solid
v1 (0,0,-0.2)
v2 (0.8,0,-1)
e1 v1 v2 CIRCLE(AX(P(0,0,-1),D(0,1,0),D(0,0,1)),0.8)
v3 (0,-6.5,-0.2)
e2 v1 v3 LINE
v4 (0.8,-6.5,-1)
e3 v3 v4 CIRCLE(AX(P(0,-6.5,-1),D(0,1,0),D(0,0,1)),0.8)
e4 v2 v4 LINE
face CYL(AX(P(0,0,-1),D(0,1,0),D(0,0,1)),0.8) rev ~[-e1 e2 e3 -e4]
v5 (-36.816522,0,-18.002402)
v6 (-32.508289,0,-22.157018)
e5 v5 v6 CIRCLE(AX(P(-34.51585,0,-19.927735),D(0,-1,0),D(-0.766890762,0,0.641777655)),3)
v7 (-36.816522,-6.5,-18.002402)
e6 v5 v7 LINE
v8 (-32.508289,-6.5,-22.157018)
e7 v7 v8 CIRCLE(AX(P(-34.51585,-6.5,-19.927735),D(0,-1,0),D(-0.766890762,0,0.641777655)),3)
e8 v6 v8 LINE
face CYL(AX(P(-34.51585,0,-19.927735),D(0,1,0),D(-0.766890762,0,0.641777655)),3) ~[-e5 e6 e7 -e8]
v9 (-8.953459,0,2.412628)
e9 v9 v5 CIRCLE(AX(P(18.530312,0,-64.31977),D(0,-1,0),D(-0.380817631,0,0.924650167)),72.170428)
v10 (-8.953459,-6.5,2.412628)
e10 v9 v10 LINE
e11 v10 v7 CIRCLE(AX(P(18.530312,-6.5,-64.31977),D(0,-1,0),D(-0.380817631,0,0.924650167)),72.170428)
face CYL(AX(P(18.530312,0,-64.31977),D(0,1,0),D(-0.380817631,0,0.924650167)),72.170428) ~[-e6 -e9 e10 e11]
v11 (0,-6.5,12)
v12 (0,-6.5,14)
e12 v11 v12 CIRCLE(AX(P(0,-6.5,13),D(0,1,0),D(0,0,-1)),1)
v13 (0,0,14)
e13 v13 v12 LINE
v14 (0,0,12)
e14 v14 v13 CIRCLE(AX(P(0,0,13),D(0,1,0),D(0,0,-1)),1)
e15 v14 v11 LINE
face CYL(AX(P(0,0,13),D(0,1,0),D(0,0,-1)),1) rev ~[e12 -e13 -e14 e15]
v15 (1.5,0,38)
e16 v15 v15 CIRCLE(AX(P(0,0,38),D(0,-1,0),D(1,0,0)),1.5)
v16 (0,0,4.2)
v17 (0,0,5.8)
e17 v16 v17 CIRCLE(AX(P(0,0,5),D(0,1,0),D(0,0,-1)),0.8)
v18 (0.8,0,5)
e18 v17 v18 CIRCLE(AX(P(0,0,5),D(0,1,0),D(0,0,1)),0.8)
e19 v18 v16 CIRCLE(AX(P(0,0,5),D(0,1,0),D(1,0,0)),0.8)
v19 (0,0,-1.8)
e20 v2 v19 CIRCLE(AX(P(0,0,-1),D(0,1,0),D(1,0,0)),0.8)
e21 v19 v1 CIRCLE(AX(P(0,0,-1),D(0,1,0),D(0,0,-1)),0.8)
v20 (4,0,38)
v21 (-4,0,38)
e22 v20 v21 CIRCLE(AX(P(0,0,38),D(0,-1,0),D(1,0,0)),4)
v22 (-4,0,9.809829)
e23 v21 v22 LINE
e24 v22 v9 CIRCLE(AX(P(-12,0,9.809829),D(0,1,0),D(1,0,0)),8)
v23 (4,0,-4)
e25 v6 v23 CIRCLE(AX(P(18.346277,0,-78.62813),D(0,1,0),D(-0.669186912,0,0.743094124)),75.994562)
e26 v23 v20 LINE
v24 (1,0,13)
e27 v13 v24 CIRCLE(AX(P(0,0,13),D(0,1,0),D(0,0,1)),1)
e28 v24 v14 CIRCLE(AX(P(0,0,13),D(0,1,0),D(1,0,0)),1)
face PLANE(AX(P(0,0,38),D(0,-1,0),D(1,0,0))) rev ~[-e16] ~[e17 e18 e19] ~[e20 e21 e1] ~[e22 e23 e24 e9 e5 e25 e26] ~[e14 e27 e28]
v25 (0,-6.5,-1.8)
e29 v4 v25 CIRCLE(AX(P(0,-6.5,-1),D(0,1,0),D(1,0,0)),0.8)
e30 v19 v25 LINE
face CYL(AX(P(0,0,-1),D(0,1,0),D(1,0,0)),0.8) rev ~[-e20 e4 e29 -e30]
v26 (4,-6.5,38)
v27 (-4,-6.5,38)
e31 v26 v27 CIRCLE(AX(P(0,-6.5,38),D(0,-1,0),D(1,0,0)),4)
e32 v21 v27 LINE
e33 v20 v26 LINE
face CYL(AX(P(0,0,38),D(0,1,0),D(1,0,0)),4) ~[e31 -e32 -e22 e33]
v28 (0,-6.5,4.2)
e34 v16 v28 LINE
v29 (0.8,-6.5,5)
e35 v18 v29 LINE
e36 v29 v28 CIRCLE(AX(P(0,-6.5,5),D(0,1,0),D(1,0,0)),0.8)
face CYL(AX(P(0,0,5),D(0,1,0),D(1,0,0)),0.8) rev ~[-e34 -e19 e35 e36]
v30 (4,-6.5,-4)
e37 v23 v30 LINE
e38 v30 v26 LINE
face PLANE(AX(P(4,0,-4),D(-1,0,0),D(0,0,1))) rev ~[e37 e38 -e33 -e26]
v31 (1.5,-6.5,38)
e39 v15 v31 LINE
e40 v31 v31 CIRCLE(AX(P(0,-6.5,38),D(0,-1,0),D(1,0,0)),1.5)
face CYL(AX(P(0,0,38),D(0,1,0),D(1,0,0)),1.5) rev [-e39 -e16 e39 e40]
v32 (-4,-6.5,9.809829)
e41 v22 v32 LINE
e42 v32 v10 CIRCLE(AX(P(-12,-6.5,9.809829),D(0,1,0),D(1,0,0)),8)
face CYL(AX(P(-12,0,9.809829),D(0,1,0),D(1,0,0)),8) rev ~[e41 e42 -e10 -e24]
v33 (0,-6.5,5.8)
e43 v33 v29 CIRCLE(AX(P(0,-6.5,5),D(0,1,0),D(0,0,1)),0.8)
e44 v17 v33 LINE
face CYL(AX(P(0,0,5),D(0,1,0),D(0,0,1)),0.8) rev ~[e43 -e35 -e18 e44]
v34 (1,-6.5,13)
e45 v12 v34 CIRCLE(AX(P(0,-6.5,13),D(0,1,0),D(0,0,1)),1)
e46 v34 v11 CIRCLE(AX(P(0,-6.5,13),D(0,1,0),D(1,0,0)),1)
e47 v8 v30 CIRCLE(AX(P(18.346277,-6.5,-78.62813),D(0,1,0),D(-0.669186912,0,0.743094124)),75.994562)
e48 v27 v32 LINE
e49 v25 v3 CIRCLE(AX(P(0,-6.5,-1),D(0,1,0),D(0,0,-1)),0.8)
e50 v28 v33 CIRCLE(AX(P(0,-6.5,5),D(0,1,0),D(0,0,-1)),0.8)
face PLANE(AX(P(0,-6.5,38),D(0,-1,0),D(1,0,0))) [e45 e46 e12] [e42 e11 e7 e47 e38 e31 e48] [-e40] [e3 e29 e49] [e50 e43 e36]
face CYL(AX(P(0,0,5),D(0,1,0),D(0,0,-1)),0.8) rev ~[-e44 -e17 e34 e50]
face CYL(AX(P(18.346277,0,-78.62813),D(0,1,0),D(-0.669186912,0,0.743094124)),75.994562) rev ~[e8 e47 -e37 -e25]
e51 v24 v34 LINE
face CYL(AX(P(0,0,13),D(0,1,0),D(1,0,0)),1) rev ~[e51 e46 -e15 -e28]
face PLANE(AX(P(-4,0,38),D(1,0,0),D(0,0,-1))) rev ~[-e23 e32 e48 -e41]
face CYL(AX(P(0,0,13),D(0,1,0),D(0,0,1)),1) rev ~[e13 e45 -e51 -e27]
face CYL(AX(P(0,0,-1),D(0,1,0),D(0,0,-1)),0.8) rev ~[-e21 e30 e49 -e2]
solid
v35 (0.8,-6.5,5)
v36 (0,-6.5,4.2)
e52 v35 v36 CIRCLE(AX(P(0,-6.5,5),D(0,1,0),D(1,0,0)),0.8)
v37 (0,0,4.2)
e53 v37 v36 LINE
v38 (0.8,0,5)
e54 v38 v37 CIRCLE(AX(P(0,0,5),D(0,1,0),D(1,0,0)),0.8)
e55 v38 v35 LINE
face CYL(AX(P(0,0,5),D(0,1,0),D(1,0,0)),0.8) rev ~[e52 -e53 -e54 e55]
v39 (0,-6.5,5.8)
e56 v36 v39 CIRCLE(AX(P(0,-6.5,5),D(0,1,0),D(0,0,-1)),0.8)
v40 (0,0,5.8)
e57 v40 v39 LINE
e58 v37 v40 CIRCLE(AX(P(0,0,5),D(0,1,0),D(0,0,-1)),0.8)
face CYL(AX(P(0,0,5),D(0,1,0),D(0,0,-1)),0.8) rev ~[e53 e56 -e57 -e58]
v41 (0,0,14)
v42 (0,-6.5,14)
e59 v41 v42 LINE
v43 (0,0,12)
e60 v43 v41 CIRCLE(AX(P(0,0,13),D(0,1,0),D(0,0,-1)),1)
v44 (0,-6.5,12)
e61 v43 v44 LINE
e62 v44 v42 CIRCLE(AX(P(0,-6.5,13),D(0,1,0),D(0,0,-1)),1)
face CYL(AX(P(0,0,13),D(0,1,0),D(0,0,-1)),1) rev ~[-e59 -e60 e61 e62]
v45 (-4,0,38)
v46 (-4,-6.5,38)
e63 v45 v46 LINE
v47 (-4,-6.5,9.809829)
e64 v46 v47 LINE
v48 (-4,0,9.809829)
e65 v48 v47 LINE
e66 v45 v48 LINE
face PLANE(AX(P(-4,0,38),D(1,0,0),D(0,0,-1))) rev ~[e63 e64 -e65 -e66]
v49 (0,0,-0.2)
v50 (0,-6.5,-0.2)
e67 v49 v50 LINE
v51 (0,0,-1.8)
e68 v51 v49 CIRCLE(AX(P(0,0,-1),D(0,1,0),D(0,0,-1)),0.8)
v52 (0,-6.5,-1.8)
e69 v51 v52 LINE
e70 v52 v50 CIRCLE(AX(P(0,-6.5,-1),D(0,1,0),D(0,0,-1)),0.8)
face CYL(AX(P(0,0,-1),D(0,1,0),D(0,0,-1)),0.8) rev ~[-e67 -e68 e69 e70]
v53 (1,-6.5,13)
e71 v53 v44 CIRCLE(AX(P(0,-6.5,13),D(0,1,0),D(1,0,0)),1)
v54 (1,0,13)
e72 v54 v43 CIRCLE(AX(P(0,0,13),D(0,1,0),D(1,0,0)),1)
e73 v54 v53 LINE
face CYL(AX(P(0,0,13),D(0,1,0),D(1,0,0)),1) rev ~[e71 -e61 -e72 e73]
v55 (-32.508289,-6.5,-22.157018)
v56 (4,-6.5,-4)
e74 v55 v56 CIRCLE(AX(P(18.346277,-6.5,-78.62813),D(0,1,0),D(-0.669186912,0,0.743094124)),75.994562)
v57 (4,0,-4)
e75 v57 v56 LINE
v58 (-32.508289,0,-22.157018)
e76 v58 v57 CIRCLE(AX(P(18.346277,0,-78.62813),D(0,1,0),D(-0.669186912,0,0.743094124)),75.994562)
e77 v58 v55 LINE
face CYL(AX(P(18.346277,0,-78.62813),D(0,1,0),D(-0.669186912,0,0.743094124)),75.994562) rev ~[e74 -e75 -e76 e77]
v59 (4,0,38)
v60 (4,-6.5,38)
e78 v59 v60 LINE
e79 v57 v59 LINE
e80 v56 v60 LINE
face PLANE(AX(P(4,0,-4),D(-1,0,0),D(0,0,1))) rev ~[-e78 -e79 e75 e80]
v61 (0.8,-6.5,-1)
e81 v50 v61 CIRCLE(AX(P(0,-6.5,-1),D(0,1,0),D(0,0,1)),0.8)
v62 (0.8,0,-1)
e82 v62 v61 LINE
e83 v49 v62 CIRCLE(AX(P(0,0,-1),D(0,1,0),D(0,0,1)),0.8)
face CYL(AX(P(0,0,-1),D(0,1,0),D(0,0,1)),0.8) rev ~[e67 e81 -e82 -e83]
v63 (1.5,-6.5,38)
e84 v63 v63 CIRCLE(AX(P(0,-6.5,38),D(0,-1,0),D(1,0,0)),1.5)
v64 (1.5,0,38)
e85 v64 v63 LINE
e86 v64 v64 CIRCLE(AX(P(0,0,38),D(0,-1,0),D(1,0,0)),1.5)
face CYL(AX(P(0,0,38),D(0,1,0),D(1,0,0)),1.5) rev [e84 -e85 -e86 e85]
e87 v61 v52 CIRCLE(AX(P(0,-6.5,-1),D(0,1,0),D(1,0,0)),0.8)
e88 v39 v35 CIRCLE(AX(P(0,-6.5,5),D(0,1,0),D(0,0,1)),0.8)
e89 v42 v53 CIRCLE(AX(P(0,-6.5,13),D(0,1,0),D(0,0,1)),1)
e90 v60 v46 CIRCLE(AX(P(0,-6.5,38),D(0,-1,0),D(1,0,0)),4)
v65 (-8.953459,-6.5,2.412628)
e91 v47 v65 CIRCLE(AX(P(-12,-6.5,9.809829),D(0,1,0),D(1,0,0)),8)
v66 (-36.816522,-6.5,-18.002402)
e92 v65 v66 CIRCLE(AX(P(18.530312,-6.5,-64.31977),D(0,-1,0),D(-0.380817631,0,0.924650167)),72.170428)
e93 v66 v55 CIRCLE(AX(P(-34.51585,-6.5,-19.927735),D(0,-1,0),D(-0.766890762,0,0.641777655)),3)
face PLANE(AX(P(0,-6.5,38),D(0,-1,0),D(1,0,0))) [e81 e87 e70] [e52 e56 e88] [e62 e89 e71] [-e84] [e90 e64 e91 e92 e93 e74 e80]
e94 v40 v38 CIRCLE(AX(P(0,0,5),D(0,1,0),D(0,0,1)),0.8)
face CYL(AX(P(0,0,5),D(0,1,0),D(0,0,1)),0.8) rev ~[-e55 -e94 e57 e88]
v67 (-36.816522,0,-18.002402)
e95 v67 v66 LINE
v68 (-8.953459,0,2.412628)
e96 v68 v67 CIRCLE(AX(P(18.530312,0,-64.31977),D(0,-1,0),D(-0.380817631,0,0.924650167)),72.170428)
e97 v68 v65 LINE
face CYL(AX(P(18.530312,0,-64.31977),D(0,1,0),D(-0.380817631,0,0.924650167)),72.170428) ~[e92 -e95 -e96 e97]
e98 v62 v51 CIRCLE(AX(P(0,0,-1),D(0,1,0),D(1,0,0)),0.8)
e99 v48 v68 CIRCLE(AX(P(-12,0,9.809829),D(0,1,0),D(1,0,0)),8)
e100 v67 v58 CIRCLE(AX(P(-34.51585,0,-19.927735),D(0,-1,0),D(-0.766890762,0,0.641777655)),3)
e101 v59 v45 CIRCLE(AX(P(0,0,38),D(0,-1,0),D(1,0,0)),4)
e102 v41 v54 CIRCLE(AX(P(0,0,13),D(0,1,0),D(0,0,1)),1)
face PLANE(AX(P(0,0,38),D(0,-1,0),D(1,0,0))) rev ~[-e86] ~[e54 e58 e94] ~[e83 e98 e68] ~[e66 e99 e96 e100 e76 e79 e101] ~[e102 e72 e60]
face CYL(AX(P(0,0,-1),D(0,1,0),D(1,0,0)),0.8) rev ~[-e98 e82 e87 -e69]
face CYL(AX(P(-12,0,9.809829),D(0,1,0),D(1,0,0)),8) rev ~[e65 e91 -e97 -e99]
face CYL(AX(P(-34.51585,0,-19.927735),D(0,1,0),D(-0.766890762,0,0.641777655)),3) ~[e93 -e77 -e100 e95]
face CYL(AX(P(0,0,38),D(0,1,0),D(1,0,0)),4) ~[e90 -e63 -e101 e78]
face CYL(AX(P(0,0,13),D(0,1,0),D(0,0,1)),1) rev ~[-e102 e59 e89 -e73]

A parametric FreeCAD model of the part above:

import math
import FreeCAD as App
import Part
import Sketcher

doc = App.newDocument("Part")
params = doc.addObject("Spreadsheet::Sheet", "Params")
for row, (alias, value) in enumerate([
    ("sketch1_diameter", "3 mm"),
    ("sketch1_radius", "4 mm"),
    ("sketch1_radius2", "8 mm"),
    ("sketch1_radius3", "3 mm"),
    ("sketch1_radius4", "1 mm"),
    ("pad1_length", "6.5 mm"),
    ("sketch2_diameter", "3 mm"),
    ("sketch2_radius", "4 mm"),
    ("sketch2_radius2", "8 mm"),
    ("sketch2_radius3", "3 mm"),
    ("sketch2_radius4", "1 mm"),
    ("pad2_length", "6.5 mm"),
], start=1):
    params.set(f"A{row}", alias)
    params.set(f"B{row}", "=" + value)
    params.setAlias(f"B{row}", alias)

body = doc.addObject("PartDesign::Body", "Body")

sketch1 = body.newObject("Sketcher::SketchObject", "Sketch")
sketch1.AttachmentSupport = (doc.getObject("XZ_Plane"), [""])
sketch1.MapMode = "FlatFace"
sketch1.addGeometry([
    Part.LineSegment(App.Vector(4, -4, 0), App.Vector(4, 38, 0)),
    Part.ArcOfCircle(Part.Circle(App.Vector(0, 38, 0), App.Vector(0, 0, 1), 4), math.radians(0), math.radians(180)),
    Part.LineSegment(App.Vector(-4, 38, 0), App.Vector(-4, 9.8, 0)),
    Part.ArcOfCircle(Part.Circle(App.Vector(-12, 9.8, 0), App.Vector(0, 0, 1), 8), math.radians(-68), math.radians(0)),
    Part.ArcOfCircle(Part.Circle(App.Vector(18.5, -64.3, 0), App.Vector(0, 0, 1), 72.2), math.radians(112), math.radians(140)),
    Part.ArcOfCircle(Part.Circle(App.Vector(-34.5, -19.9, 0), App.Vector(0, 0, 1), 3), math.radians(140), math.radians(312)),
    Part.ArcOfCircle(Part.Circle(App.Vector(18.3, -78.6, 0), App.Vector(0, 0, 1), 76), math.radians(101), math.radians(132)),
    Part.ArcOfCircle(Part.Circle(App.Vector(0, -1, 0), App.Vector(0, 0, 1), 0.8), math.radians(0), math.radians(90)),
    Part.ArcOfCircle(Part.Circle(App.Vector(0, -1, 0), App.Vector(0, 0, 1), 0.8), math.radians(-90), math.radians(0)),
    Part.ArcOfCircle(Part.Circle(App.Vector(0, -1, 0), App.Vector(0, 0, 1), 0.8), math.radians(90), math.radians(270)),
    Part.ArcOfCircle(Part.Circle(App.Vector(0, 5, 0), App.Vector(0, 0, 1), 0.8), math.radians(0), math.radians(90)),
    Part.ArcOfCircle(Part.Circle(App.Vector(0, 5, 0), App.Vector(0, 0, 1), 0.8), math.radians(-90), math.radians(0)),
    Part.ArcOfCircle(Part.Circle(App.Vector(0, 5, 0), App.Vector(0, 0, 1), 0.8), math.radians(90), math.radians(270)),
    Part.ArcOfCircle(Part.Circle(App.Vector(0, 13, 0), App.Vector(0, 0, 1), 1), math.radians(0), math.radians(90)),
    Part.ArcOfCircle(Part.Circle(App.Vector(0, 13, 0), App.Vector(0, 0, 1), 1), math.radians(-90), math.radians(0)),
    Part.ArcOfCircle(Part.Circle(App.Vector(0, 13, 0), App.Vector(0, 0, 1), 1), math.radians(90), math.radians(270)),
    Part.Circle(App.Vector(0, 38, 0), App.Vector(0, 0, 1), 1.5),
], False)
sketch1.addConstraint([
    Sketcher.Constraint("Tangent", 0, 2, 1, 1),
    Sketcher.Constraint("Tangent", 1, 2, 2, 1),
    Sketcher.Constraint("Tangent", 2, 2, 3, 2),
    Sketcher.Constraint("Tangent", 3, 1, 4, 1),
    Sketcher.Constraint("Tangent", 4, 2, 5, 1),
    Sketcher.Constraint("Tangent", 5, 2, 6, 2),
    Sketcher.Constraint("Coincident", 6, 1, 0, 1),
    Sketcher.Constraint("Tangent", 7, 1, 8, 2),
    Sketcher.Constraint("Tangent", 8, 1, 9, 2),
    Sketcher.Constraint("Tangent", 9, 1, 7, 2),
    Sketcher.Constraint("Tangent", 10, 1, 11, 2),
    Sketcher.Constraint("Tangent", 11, 1, 12, 2),
    Sketcher.Constraint("Tangent", 12, 1, 10, 2),
    Sketcher.Constraint("Tangent", 13, 1, 14, 2),
    Sketcher.Constraint("Tangent", 14, 1, 15, 2),
    Sketcher.Constraint("Tangent", 15, 1, 13, 2),
    Sketcher.Constraint("Vertical", 0),
    Sketcher.Constraint("Vertical", 2),
    Sketcher.Constraint("Coincident", 16, 3, 1, 3),
    Sketcher.Constraint("Equal", 9, 10),
    Sketcher.Constraint("PointOnObject", 1, 3, -2),
    Sketcher.Constraint("PointOnObject", 7, 3, -2),
    Sketcher.Constraint("PointOnObject", 10, 3, -2),
    Sketcher.Constraint("PointOnObject", 13, 3, -2),
    Sketcher.Constraint("PointOnObject", 8, 1, -2),
    Sketcher.Constraint("PointOnObject", 9, 1, -2),
    Sketcher.Constraint("PointOnObject", 11, 1, -2),
    Sketcher.Constraint("PointOnObject", 12, 1, -2),
    Sketcher.Constraint("PointOnObject", 14, 1, -2),
    Sketcher.Constraint("PointOnObject", 15, 1, -2),
    Sketcher.Constraint("Horizontal", 9, 3, 7, 1),
    Sketcher.Constraint("Horizontal", 12, 3, 10, 1),
    Sketcher.Constraint("Horizontal", 15, 3, 13, 1),
    Sketcher.Constraint("Diameter", 16, 3.0),
    Sketcher.Constraint("Radius", 1, 4.0),
    Sketcher.Constraint("Radius", 3, 8.0),
    Sketcher.Constraint("Radius", 5, 3.0),
    Sketcher.Constraint("Radius", 13, 1.0),
    Sketcher.Constraint("Radius", 7, 0.8),
    Sketcher.Constraint("DistanceY", 0, 1, 0, 2, 42.0),
    Sketcher.Constraint("DistanceY", -1, 1, 1, 3, 38.0),
    Sketcher.Constraint("DistanceY", 7, 3, -1, 1, 1.0),
    Sketcher.Constraint("DistanceY", -1, 1, 10, 3, 5.0),
    Sketcher.Constraint("DistanceY", -1, 1, 13, 3, 13.0),
    Sketcher.Constraint("Radius", 6, 75.994562),
    Sketcher.Constraint("Radius", 4, 72.170428),
    Sketcher.Constraint("DistanceY", 2, 2, 2, 1, 28.190171),
    Sketcher.Constraint("DistanceY", 4, 3, 3, 3, 74.1296),
    Sketcher.Constraint("DistanceX", 5, 3, -1, 1, 34.51585),
])
sketch1.setExpression("Constraints[33]", "Params.sketch1_diameter")
sketch1.setExpression("Constraints[34]", "Params.sketch1_radius")
sketch1.setExpression("Constraints[35]", "Params.sketch1_radius2")
sketch1.setExpression("Constraints[36]", "Params.sketch1_radius3")
sketch1.setExpression("Constraints[37]", "Params.sketch1_radius4")
pad1 = body.newObject("PartDesign::Pad", "Pad")
pad1.Profile = sketch1
pad1.setExpression("Length", "Params.pad1_length")
body2 = doc.addObject("PartDesign::Body", "Body001")

sketch2 = body2.newObject("Sketcher::SketchObject", "Sketch001")
sketch2.AttachmentSupport = (doc.getObject("XZ_Plane001"), [""])
sketch2.MapMode = "FlatFace"
sketch2.addGeometry([
    Part.LineSegment(App.Vector(4, -4, 0), App.Vector(4, 38, 0)),
    Part.ArcOfCircle(Part.Circle(App.Vector(0, 38, 0), App.Vector(0, 0, 1), 4), math.radians(0), math.radians(180)),
    Part.LineSegment(App.Vector(-4, 38, 0), App.Vector(-4, 9.8, 0)),
    Part.ArcOfCircle(Part.Circle(App.Vector(-12, 9.8, 0), App.Vector(0, 0, 1), 8), math.radians(-68), math.radians(0)),
    Part.ArcOfCircle(Part.Circle(App.Vector(18.5, -64.3, 0), App.Vector(0, 0, 1), 72.2), math.radians(112), math.radians(140)),
    Part.ArcOfCircle(Part.Circle(App.Vector(-34.5, -19.9, 0), App.Vector(0, 0, 1), 3), math.radians(140), math.radians(312)),
    Part.ArcOfCircle(Part.Circle(App.Vector(18.3, -78.6, 0), App.Vector(0, 0, 1), 76), math.radians(101), math.radians(132)),
    Part.ArcOfCircle(Part.Circle(App.Vector(0, -1, 0), App.Vector(0, 0, 1), 0.8), math.radians(-90), math.radians(0)),
    Part.ArcOfCircle(Part.Circle(App.Vector(0, -1, 0), App.Vector(0, 0, 1), 0.8), math.radians(90), math.radians(270)),
    Part.ArcOfCircle(Part.Circle(App.Vector(0, -1, 0), App.Vector(0, 0, 1), 0.8), math.radians(0), math.radians(90)),
    Part.ArcOfCircle(Part.Circle(App.Vector(0, 5, 0), App.Vector(0, 0, 1), 0.8), math.radians(0), math.radians(90)),
    Part.ArcOfCircle(Part.Circle(App.Vector(0, 5, 0), App.Vector(0, 0, 1), 0.8), math.radians(-90), math.radians(0)),
    Part.ArcOfCircle(Part.Circle(App.Vector(0, 5, 0), App.Vector(0, 0, 1), 0.8), math.radians(90), math.radians(270)),
    Part.ArcOfCircle(Part.Circle(App.Vector(0, 13, 0), App.Vector(0, 0, 1), 1), math.radians(0), math.radians(90)),
    Part.ArcOfCircle(Part.Circle(App.Vector(0, 13, 0), App.Vector(0, 0, 1), 1), math.radians(-90), math.radians(0)),
    Part.ArcOfCircle(Part.Circle(App.Vector(0, 13, 0), App.Vector(0, 0, 1), 1), math.radians(90), math.radians(270)),
    Part.Circle(App.Vector(0, 38, 0), App.Vector(0, 0, 1), 1.5),
], False)
sketch2.addConstraint([
    Sketcher.Constraint("Tangent", 0, 2, 1, 1),
    Sketcher.Constraint("Tangent", 1, 2, 2, 1),
    Sketcher.Constraint("Tangent", 2, 2, 3, 2),
    Sketcher.Constraint("Tangent", 3, 1, 4, 1),
    Sketcher.Constraint("Tangent", 4, 2, 5, 1),
    Sketcher.Constraint("Tangent", 5, 2, 6, 2),
    Sketcher.Constraint("Coincident", 6, 1, 0, 1),
    Sketcher.Constraint("Tangent", 7, 1, 8, 2),
    Sketcher.Constraint("Tangent", 8, 1, 9, 2),
    Sketcher.Constraint("Tangent", 9, 1, 7, 2),
    Sketcher.Constraint("Tangent", 10, 1, 11, 2),
    Sketcher.Constraint("Tangent", 11, 1, 12, 2),
    Sketcher.Constraint("Tangent", 12, 1, 10, 2),
    Sketcher.Constraint("Tangent", 13, 1, 14, 2),
    Sketcher.Constraint("Tangent", 14, 1, 15, 2),
    Sketcher.Constraint("Tangent", 15, 1, 13, 2),
    Sketcher.Constraint("Vertical", 0),
    Sketcher.Constraint("Vertical", 2),
    Sketcher.Constraint("Coincident", 16, 3, 1, 3),
    Sketcher.Constraint("Equal", 9, 10),
    Sketcher.Constraint("PointOnObject", 1, 3, -2),
    Sketcher.Constraint("PointOnObject", 7, 3, -2),
    Sketcher.Constraint("PointOnObject", 10, 3, -2),
    Sketcher.Constraint("PointOnObject", 13, 3, -2),
    Sketcher.Constraint("PointOnObject", 7, 1, -2),
    Sketcher.Constraint("PointOnObject", 8, 1, -2),
    Sketcher.Constraint("PointOnObject", 11, 1, -2),
    Sketcher.Constraint("PointOnObject", 12, 1, -2),
    Sketcher.Constraint("PointOnObject", 14, 1, -2),
    Sketcher.Constraint("PointOnObject", 15, 1, -2),
    Sketcher.Constraint("Horizontal", 8, 3, 9, 1),
    Sketcher.Constraint("Horizontal", 12, 3, 10, 1),
    Sketcher.Constraint("Horizontal", 15, 3, 13, 1),
    Sketcher.Constraint("Diameter", 16, 3.0),
    Sketcher.Constraint("Radius", 1, 4.0),
    Sketcher.Constraint("Radius", 3, 8.0),
    Sketcher.Constraint("Radius", 5, 3.0),
    Sketcher.Constraint("Radius", 13, 1.0),
    Sketcher.Constraint("Radius", 7, 0.8),
    Sketcher.Constraint("DistanceY", 0, 1, 0, 2, 42.0),
    Sketcher.Constraint("DistanceY", -1, 1, 1, 3, 38.0),
    Sketcher.Constraint("DistanceY", 7, 3, -1, 1, 1.0),
    Sketcher.Constraint("DistanceY", -1, 1, 10, 3, 5.0),
    Sketcher.Constraint("DistanceY", -1, 1, 13, 3, 13.0),
    Sketcher.Constraint("Radius", 6, 75.994562),
    Sketcher.Constraint("Radius", 4, 72.170428),
    Sketcher.Constraint("DistanceY", 2, 2, 2, 1, 28.190171),
    Sketcher.Constraint("DistanceY", 4, 3, 3, 3, 74.1296),
    Sketcher.Constraint("DistanceX", 5, 3, -1, 1, 34.51585),
])
sketch2.setExpression("Constraints[33]", "Params.sketch2_diameter")
sketch2.setExpression("Constraints[34]", "Params.sketch2_radius")
sketch2.setExpression("Constraints[35]", "Params.sketch2_radius2")
sketch2.setExpression("Constraints[36]", "Params.sketch2_radius3")
sketch2.setExpression("Constraints[37]", "Params.sketch2_radius4")
pad2 = body2.newObject("PartDesign::Pad", "Pad001")
pad2.Profile = sketch2
pad2.setExpression("Length", "Params.pad2_length")

doc.recompute()
